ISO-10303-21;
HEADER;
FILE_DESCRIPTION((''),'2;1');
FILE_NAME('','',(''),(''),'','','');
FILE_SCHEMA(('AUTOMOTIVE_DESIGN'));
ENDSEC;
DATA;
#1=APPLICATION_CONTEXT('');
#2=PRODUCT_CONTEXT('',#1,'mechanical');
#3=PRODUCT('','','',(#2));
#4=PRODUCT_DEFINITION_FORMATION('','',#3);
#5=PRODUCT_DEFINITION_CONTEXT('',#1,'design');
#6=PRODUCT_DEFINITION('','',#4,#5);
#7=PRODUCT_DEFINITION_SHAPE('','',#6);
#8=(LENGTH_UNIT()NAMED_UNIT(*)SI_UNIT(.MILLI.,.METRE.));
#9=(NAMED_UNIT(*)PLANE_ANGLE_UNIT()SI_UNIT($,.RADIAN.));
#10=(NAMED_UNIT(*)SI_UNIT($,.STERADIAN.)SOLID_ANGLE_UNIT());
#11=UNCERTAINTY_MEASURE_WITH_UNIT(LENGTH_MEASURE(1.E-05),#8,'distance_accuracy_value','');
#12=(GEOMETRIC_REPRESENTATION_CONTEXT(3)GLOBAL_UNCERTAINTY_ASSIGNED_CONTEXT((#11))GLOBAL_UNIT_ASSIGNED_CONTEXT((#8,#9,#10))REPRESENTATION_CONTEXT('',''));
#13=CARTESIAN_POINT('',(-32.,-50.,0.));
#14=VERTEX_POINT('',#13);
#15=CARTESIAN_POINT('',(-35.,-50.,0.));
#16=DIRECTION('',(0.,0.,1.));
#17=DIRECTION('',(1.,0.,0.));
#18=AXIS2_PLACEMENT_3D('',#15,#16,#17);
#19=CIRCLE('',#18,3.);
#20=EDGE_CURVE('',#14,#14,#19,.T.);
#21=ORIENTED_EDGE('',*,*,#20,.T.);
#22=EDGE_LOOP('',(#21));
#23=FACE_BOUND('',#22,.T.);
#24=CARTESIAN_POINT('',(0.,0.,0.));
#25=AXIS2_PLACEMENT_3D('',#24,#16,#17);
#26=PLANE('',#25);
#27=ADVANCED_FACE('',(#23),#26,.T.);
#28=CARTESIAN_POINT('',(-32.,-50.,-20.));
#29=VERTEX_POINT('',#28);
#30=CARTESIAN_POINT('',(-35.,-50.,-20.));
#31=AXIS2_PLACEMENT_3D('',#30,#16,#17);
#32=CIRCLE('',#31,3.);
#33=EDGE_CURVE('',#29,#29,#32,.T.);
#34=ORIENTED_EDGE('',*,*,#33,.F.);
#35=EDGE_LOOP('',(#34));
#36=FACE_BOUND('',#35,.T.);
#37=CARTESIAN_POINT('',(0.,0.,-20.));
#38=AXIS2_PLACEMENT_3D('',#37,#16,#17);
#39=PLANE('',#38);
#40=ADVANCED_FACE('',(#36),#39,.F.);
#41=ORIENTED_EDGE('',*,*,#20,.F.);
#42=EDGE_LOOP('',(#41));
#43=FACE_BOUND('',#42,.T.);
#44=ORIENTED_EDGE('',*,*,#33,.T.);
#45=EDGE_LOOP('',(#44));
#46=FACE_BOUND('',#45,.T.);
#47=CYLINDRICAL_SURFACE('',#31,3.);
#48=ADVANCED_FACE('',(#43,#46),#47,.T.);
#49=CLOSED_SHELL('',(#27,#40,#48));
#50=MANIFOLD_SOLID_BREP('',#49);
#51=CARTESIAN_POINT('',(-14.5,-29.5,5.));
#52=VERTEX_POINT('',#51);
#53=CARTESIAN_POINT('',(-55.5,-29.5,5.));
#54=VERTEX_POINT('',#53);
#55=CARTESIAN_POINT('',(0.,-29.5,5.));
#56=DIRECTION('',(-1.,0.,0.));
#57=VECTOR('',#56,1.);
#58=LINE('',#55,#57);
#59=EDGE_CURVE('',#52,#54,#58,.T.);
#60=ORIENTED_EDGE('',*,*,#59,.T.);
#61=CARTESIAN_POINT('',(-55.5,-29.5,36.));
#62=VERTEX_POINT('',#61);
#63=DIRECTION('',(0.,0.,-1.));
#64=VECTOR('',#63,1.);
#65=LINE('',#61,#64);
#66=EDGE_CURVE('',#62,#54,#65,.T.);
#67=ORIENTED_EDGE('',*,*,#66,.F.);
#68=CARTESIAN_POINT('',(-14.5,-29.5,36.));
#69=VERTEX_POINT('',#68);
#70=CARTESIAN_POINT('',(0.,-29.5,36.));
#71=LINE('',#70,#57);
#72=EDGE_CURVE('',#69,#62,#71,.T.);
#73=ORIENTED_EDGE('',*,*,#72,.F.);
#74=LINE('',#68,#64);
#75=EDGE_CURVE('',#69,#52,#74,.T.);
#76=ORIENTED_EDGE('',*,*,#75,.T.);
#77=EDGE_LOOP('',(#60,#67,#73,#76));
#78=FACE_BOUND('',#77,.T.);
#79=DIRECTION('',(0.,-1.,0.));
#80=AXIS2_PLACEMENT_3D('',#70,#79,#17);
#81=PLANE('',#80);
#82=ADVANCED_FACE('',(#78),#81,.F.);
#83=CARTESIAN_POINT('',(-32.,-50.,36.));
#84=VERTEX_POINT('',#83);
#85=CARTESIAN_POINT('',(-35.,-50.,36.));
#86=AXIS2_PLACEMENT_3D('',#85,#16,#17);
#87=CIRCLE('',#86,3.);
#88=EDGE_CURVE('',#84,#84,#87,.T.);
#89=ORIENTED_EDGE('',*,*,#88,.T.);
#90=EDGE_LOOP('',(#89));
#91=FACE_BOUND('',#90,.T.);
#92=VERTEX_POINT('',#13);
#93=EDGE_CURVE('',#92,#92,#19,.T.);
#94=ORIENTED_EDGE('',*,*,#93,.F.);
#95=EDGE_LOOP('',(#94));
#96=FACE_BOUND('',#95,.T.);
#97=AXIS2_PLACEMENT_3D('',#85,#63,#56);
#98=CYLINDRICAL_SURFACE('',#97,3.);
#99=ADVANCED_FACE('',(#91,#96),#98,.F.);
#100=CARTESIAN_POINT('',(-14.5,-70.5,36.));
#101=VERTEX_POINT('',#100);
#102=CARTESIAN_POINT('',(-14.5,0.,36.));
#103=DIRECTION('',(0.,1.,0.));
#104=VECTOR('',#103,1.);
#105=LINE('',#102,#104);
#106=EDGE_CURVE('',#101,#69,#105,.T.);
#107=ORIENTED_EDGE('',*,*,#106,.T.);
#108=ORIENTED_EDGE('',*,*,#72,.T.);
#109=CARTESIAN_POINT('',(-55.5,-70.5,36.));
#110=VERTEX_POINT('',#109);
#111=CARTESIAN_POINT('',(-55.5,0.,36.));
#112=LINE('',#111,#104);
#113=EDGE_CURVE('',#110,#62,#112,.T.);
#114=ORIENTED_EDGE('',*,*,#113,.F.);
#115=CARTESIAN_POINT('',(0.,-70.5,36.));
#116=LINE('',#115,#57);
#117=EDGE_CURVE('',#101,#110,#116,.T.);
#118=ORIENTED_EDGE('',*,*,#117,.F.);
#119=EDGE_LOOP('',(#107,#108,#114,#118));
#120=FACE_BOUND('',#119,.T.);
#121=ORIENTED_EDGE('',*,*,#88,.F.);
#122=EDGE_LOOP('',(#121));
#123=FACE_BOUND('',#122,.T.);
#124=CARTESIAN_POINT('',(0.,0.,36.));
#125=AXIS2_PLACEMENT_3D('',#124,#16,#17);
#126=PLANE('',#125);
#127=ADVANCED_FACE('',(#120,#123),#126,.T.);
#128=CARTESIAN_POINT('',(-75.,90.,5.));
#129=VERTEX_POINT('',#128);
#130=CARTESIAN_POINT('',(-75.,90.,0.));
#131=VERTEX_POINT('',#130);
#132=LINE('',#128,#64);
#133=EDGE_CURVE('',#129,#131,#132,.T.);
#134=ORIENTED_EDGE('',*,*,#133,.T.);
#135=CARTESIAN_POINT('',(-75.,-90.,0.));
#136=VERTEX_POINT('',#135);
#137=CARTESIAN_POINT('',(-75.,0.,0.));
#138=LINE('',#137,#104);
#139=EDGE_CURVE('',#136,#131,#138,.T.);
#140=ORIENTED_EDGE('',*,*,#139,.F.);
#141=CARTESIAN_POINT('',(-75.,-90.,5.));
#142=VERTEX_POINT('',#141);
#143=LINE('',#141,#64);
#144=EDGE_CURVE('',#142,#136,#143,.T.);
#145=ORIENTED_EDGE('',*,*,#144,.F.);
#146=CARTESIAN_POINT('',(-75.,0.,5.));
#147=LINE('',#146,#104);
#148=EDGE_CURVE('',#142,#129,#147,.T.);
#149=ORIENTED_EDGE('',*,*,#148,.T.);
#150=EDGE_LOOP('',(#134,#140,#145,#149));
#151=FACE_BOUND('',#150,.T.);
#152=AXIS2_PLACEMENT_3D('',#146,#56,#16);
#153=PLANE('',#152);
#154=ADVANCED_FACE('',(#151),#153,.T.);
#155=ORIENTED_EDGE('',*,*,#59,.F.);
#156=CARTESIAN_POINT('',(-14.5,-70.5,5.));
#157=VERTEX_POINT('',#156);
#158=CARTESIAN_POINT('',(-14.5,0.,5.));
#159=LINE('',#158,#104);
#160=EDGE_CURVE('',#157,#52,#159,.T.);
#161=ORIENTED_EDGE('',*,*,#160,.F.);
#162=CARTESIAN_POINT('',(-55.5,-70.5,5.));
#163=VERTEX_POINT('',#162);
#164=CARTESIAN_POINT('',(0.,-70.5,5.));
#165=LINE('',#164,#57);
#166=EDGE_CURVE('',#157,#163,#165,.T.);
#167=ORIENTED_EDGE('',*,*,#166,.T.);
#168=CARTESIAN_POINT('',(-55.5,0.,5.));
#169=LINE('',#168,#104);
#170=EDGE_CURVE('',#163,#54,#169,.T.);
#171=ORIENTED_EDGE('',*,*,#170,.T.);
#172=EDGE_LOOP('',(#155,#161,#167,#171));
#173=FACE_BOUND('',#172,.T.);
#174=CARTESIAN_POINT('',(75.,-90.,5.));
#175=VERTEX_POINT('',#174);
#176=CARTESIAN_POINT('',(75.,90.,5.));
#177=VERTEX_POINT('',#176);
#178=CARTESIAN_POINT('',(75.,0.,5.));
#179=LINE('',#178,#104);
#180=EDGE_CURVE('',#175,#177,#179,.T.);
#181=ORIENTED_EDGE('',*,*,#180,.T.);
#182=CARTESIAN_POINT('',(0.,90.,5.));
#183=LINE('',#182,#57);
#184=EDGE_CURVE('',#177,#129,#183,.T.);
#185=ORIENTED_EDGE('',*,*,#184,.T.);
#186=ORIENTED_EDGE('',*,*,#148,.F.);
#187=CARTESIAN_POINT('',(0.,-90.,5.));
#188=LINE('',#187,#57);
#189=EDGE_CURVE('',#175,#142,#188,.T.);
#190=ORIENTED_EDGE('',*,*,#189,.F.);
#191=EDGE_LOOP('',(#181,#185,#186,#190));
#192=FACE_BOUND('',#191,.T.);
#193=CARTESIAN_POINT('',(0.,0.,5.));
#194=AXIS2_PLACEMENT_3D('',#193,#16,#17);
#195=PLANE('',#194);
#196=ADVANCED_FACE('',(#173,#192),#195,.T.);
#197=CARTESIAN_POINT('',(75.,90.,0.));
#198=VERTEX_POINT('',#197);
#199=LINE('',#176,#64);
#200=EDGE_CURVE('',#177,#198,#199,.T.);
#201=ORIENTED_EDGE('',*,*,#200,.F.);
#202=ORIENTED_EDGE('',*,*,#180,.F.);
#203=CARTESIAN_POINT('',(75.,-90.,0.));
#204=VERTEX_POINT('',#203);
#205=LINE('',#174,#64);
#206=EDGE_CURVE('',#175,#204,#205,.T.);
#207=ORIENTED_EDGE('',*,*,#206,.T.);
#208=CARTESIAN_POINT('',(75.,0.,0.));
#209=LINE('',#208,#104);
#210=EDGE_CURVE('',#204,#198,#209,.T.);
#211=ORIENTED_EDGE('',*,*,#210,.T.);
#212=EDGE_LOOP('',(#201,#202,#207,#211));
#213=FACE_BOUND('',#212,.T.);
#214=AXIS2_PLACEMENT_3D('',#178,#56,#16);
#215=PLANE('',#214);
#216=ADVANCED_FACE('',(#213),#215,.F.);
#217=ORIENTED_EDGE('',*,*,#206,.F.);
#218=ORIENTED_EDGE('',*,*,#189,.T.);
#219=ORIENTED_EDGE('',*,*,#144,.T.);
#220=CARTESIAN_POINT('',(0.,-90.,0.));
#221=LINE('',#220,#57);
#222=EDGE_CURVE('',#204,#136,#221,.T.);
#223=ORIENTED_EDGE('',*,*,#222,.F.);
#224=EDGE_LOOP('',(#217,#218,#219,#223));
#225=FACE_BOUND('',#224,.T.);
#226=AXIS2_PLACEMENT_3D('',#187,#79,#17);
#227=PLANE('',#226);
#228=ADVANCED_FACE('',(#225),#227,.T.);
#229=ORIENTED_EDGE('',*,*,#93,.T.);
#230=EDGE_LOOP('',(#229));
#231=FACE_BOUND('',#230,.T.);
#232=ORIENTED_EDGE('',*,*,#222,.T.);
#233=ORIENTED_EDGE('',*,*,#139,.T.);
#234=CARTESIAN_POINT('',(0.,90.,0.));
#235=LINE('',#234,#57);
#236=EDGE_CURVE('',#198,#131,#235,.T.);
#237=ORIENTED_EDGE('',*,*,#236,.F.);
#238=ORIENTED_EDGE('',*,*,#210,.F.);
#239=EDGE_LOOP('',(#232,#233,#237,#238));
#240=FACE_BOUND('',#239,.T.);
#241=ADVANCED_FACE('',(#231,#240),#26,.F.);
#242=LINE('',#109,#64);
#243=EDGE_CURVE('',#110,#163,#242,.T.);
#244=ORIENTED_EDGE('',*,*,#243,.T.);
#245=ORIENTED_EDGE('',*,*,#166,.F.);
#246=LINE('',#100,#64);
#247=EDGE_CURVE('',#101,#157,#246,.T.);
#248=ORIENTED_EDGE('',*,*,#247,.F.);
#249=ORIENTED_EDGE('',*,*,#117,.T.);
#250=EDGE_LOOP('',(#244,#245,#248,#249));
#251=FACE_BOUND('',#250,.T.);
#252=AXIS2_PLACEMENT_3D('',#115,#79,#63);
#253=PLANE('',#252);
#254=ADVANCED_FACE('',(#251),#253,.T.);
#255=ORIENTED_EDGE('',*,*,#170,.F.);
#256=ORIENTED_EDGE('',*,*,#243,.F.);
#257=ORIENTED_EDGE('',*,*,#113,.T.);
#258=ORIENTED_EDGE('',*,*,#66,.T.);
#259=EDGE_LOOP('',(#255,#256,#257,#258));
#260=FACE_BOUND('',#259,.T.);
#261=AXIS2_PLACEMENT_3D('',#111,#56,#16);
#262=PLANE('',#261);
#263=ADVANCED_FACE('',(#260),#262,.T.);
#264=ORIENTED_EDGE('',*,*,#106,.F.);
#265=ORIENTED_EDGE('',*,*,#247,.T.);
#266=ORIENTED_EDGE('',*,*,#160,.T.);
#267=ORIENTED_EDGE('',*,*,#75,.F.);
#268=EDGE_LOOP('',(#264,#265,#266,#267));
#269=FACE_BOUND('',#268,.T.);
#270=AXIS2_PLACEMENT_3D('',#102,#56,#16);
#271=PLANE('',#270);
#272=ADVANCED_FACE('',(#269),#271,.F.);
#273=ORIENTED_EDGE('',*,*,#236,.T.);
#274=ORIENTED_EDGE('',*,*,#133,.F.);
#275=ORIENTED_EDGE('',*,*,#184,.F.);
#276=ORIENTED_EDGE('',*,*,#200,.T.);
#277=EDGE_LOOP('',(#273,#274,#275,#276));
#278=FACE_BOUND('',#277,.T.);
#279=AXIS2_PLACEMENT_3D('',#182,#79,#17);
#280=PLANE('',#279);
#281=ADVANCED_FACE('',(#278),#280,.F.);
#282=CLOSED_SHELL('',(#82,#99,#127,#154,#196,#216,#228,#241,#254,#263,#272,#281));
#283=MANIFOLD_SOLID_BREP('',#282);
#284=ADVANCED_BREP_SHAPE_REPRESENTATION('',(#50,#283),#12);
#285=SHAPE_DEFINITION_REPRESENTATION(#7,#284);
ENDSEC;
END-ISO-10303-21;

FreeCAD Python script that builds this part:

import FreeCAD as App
import Part
import Sketcher

V = App.Vector
Q = App.Units.Quantity


def add_polygon(sketch, points):
    """Adds a closed chain of lines whose ends are joined by coincident constraints."""
    first, n = sketch.GeometryCount, len(points)
    for a, b in zip(points, points[1:] + points[:1]):
        sketch.addGeometry(Part.LineSegment(App.Vector(*a, 0), App.Vector(*b, 0)), False)
    for i in range(n):
        sketch.addConstraint(Sketcher.Constraint("Coincident", first + i, 2, first + (i + 1) % n, 1))

doc = App.newDocument("Part")
body = doc.addObject("PartDesign::Body", "Body")

# Sketch on XY plane
sketch1 = body.newObject("Sketcher::SketchObject", "Sketch")
sketch1.AttachmentSupport = (doc.getObject("XY_Plane"), [""])
sketch1.MapMode = "FlatFace"
add_polygon(sketch1, [(-75, 90), (-75, -90), (75, -90), (75, 90)])  # lines 0-3
add_polygon(sketch1, [(-14.5, -70.5), (-55.5, -70.5), (-55.5, -29.5), (-14.5, -29.5)])  # lines 4-7
sketch1.addConstraint([
    Sketcher.Constraint("Vertical", 0),
    Sketcher.Constraint("Horizontal", 1),
    Sketcher.Constraint("Vertical", 2),
    Sketcher.Constraint("Horizontal", 3),
    Sketcher.Constraint("Horizontal", 4),
    Sketcher.Constraint("Vertical", 5),
    Sketcher.Constraint("Horizontal", 6),
    Sketcher.Constraint("Vertical", 7),
    Sketcher.Constraint("Symmetric", 0, 2, 2, 2, -1, 1),
    Sketcher.Constraint("Equal", 6, 5),
    Sketcher.Constraint("DistanceX", 1, 1, 1, 2, Q("150 mm")),
    Sketcher.Constraint("DistanceX", 4, 2, 4, 1, Q("41 mm")),
    Sketcher.Constraint("DistanceY", 0, 2, 0, 1, Q("180 mm")),
    Sketcher.Constraint("DistanceX", 4, 2, -1, 1, Q("55.5 mm")),
    Sketcher.Constraint("DistanceY", 4, 2, -1, 1, Q("70.5 mm")),
])
pad1 = body.newObject("PartDesign::Pad", "Pad")
pad1.Profile = sketch1
pad1.Length = 5

# Sketch on XY plane
sketch2 = body.newObject("Sketcher::SketchObject", "Sketch001")
sketch2.AttachmentSupport = (doc.getObject("XY_Plane"), [""])
sketch2.MapMode = "FlatFace"
add_polygon(sketch2, [(-55.5, -29.5), (-55.5, -70.5), (-14.5, -70.5), (-14.5, -29.5)])  # lines 0-3
sketch2.addGeometry(Part.Circle(V(-35, -50, 0), V(0, 0, 1), 3), False)  # 4
sketch2.addConstraint([
    Sketcher.Constraint("Vertical", 0),
    Sketcher.Constraint("Horizontal", 1),
    Sketcher.Constraint("Vertical", 2),
    Sketcher.Constraint("Horizontal", 3),
    Sketcher.Constraint("Equal", 3, 0),
    Sketcher.Constraint("Diameter", 4, Q("6 mm")),
    Sketcher.Constraint("DistanceX", 1, 1, 1, 2, Q("41 mm")),
    Sketcher.Constraint("DistanceX", 4, 3, -1, 1, Q("35 mm")),
    Sketcher.Constraint("DistanceY", 4, 3, -1, 1, Q("50 mm")),
    Sketcher.Constraint("DistanceX", 0, 2, -1, 1, Q("55.5 mm")),
    Sketcher.Constraint("DistanceY", 0, 2, -1, 1, Q("70.5 mm")),
])
pad2 = body.newObject("PartDesign::Pad", "Pad001")
pad2.Profile = sketch2
pad2.Length = 36
body2 = doc.addObject("PartDesign::Body", "Body001")

# Sketch on XY plane
sketch3 = body2.newObject("Sketcher::SketchObject", "Sketch002")
sketch3.AttachmentSupport = (doc.getObject("XY_Plane001"), [""])
sketch3.MapMode = "FlatFace"
sketch3.addGeometry(Part.Circle(V(-35, -50, 0), V(0, 0, 1), 3), False)
sketch3.addConstraint([
    Sketcher.Constraint("Diameter", 0, Q("6 mm")),
    Sketcher.Constraint("DistanceX", 0, 3, -1, 1, Q("35 mm")),
    Sketcher.Constraint("DistanceY", 0, 3, -1, 1, Q("50 mm")),
])
pad3 = body2.newObject("PartDesign::Pad", "Pad002")
pad3.Profile = sketch3
pad3.Length = 20
pad3.Reversed = True

doc.recompute()
